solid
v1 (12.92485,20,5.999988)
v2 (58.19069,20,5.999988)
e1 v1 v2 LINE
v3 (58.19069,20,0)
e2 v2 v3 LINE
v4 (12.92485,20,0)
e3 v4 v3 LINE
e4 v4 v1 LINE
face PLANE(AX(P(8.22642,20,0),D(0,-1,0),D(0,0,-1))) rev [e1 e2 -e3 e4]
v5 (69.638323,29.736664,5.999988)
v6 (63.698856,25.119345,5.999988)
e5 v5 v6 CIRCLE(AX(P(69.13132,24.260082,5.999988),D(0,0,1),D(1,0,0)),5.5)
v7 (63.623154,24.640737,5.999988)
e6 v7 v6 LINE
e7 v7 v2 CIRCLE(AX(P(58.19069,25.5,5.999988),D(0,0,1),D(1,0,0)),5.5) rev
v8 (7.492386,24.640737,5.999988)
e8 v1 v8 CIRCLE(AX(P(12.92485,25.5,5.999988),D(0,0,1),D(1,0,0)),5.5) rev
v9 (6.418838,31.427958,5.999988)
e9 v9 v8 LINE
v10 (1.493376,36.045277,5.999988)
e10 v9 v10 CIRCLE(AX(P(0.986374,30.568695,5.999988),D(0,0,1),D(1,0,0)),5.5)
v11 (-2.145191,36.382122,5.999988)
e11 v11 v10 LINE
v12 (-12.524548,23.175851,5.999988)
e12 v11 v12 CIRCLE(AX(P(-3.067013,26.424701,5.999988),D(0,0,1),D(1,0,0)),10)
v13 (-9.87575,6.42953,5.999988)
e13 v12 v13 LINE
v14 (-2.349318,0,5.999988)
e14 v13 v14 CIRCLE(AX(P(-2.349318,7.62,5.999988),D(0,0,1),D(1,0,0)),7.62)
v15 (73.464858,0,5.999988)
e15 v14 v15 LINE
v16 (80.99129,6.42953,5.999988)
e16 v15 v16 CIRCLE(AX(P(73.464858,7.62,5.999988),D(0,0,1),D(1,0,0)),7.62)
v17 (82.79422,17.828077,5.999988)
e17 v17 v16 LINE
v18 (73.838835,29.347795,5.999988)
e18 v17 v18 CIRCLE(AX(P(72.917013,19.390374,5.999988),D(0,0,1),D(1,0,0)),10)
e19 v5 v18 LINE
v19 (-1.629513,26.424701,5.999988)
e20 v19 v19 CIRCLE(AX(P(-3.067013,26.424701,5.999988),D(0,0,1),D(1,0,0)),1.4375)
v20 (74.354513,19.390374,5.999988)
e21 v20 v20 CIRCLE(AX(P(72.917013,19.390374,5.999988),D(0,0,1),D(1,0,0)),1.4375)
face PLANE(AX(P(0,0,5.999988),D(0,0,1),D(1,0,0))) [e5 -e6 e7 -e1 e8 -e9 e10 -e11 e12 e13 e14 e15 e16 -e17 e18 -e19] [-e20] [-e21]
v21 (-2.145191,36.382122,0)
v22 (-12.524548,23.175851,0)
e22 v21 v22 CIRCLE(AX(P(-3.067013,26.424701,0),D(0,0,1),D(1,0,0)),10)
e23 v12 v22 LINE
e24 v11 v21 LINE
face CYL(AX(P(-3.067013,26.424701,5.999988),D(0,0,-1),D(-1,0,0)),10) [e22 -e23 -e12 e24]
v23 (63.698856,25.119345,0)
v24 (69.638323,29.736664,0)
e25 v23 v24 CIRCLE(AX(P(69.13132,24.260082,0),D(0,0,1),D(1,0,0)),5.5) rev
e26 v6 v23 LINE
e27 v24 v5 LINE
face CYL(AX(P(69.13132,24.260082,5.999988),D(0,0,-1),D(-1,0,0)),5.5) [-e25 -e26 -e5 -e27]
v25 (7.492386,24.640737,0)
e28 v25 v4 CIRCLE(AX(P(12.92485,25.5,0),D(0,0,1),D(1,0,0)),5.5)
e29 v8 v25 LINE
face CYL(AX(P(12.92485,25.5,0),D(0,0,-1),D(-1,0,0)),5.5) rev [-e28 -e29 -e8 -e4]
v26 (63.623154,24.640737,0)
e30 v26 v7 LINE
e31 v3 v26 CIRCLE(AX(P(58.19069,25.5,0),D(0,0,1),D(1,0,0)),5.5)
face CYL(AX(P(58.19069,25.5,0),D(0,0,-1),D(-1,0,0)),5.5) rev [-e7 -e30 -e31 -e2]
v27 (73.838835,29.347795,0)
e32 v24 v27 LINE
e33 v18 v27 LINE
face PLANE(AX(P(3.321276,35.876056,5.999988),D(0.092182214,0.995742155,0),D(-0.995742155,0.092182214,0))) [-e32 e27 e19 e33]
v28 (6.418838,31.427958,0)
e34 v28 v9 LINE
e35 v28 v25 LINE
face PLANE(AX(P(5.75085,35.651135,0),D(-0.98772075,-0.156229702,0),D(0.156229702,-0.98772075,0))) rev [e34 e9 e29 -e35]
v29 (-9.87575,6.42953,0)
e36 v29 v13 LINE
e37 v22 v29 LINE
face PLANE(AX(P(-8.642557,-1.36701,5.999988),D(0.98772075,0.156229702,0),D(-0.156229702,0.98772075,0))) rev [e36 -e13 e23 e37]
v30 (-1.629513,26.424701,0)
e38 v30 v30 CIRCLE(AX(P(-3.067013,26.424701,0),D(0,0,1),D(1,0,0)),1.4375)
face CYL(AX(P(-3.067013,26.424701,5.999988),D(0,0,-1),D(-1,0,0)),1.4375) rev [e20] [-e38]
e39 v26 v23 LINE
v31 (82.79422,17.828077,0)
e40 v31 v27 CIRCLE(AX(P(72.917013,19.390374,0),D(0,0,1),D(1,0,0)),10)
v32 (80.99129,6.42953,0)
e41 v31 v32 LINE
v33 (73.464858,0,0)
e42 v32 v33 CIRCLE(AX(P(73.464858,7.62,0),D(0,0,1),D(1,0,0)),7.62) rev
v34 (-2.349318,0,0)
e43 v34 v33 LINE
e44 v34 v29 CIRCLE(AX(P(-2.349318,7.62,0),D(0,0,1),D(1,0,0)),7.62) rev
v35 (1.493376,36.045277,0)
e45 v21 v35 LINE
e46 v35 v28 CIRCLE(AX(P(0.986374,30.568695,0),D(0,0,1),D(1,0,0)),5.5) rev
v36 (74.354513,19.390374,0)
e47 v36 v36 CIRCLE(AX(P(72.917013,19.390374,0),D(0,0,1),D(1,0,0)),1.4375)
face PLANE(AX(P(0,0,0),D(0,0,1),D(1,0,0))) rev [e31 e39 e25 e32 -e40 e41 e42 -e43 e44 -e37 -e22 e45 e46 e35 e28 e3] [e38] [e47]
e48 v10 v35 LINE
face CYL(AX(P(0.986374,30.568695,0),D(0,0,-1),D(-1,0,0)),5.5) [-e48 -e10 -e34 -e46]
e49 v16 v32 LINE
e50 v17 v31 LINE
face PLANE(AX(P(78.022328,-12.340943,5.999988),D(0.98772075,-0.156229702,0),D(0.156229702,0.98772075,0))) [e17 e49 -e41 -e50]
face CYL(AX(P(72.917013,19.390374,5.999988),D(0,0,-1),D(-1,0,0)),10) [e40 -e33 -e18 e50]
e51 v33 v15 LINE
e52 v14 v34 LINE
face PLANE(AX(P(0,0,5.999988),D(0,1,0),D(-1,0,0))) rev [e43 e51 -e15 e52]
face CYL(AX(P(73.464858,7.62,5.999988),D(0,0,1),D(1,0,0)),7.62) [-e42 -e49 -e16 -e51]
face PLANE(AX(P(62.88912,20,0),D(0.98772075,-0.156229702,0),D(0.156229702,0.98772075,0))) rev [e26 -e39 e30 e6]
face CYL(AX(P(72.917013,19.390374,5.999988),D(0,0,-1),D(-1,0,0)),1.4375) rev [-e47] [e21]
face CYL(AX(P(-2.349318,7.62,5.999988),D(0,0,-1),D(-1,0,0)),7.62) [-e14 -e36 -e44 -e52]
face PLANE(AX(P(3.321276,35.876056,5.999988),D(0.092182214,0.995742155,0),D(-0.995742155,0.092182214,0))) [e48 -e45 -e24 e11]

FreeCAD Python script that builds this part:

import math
import FreeCAD as App
import Part
import Sketcher

V = App.Vector
Q = App.Units.Quantity


def edges_at(feature, points):
    """Names of the edges that pass closest to the given points."""
    edges = feature.Shape.Edges
    near = lambda p: min(range(len(edges)), key=lambda i: edges[i].distToShape(Part.Vertex(*p))[0])
    return sorted({f"Edge{near(p) + 1}" for p in points})

doc = App.newDocument("Part")
body = doc.addObject("PartDesign::Body", "Body")

# Sketch on XY plane
sketch1 = body.newObject("Sketcher::SketchObject", "Sketch")
sketch1.AttachmentSupport = (doc.getObject("XY_Plane"), [""])
sketch1.MapMode = "FlatFace"
sketch1.addGeometry(Part.LineSegment(V(-12.5, 23.2, 0), V(-8.9, 0, 0)), False)
sketch1.addGeometry(Part.LineSegment(V(-8.9, 0, 0), V(80, 0, 0)), False)
sketch1.addGeometry(Part.LineSegment(V(80, 0, 0), V(82.8, 17.8, 0)), False)
sketch1.addGeometry(Part.ArcOfCircle(Part.Circle(V(72.9, 19.4, 0), V(0, 0, 1), 10), math.radians(-9), math.radians(85)), False)
sketch1.addGeometry(Part.LineSegment(V(73.8, 29.3, 0), V(-2.1, 36.4, 0)), False)
sketch1.addGeometry(Part.ArcOfCircle(Part.Circle(V(-3.1, 26.4, 0), V(0, 0, 1), 10), math.radians(85), math.radians(199)), False)
sketch1.addGeometry(Part.Circle(V(72.9, 19.4, 0), V(0, 0, 1), 1.4), False)
sketch1.addGeometry(Part.Circle(V(-3.1, 26.4, 0), V(0, 0, 1), 1.4), False)
sketch1.addConstraint(Sketcher.Constraint("Coincident", 0, 2, 1, 1))
sketch1.addConstraint(Sketcher.Constraint("Coincident", 1, 2, 2, 1))
sketch1.addConstraint(Sketcher.Constraint("Tangent", 2, 2, 3, 1))
sketch1.addConstraint(Sketcher.Constraint("Tangent", 3, 2, 4, 1))
sketch1.addConstraint(Sketcher.Constraint("Tangent", 4, 2, 5, 1))
sketch1.addConstraint(Sketcher.Constraint("Coincident", 5, 2, 0, 1))
sketch1.addConstraint(Sketcher.Constraint("Horizontal", 1))
sketch1.addConstraint(Sketcher.Constraint("Coincident", 6, 3, 3, 3))
sketch1.addConstraint(Sketcher.Constraint("Coincident", 7, 3, 5, 3))
sketch1.addConstraint(Sketcher.Constraint("Equal", 3, 5))
sketch1.addConstraint(Sketcher.Constraint("Equal", 6, 7))
sketch1.addConstraint(Sketcher.Constraint("PointOnObject", 0, 2, -1))
sketch1.addConstraint(Sketcher.Constraint("Radius", 3, Q("10 mm")))
sketch1.addConstraint(Sketcher.Constraint("Diameter", 6, Q("2.875 mm")))
sketch1.addConstraint(Sketcher.Constraint("DistanceX", 1, 1, 1, 2, Q("88.833098 mm")))
sketch1.addConstraint(Sketcher.Constraint("DistanceY", -1, 1, 5, 3, Q("26.424701 mm")))
sketch1.addConstraint(Sketcher.Constraint("DistanceX", 1, 2, 2, 2, Q("2.819901 mm")))
sketch1.addConstraint(Sketcher.Constraint("Distance", 0, Q("23.463971 mm")))
sketch1.addConstraint(Sketcher.Constraint("DistanceX", 0, 2, -1, 1, Q("8.858779 mm")))
sketch1.addConstraint(Sketcher.Constraint("DistanceX", 4, 2, -1, 1, Q("2.145191 mm")))
sketch1.addConstraint(Sketcher.Constraint("DistanceX", 5, 2, -1, 1, Q("12.524548 mm")))
pad1 = body.newObject("PartDesign::Pad", "Pad")
pad1.Profile = sketch1
pad1.Length = 5.999988
doc.recompute()

fillet = body.newObject("PartDesign::Fillet", "Fillet")
fillet.Base = (pad1, edges_at(pad1, [(79.974, 0, 3), (-8.859, 0, 3)]))
fillet.Radius = 7.62

# Sketch on XY plane
sketch2 = body.newObject("Sketcher::SketchObject", "Sketch001")
sketch2.AttachmentSupport = (doc.getObject("XY_Plane"), [""])
sketch2.MapMode = "FlatFace"
sketch2.AttachmentOffset = App.Placement(V(0, 0, 5.999988), App.Rotation())
sketch2.addGeometry(Part.LineSegment(V(6, 36, 0), V(8, 20, 0)), False)
sketch2.addGeometry(Part.LineSegment(V(8, 20, 0), V(63, 20, 0)), False)
sketch2.addGeometry(Part.LineSegment(V(63, 20, 0), V(65, 30, 0)), False)
sketch2.addGeometry(Part.LineSegment(V(65, 30, 0), V(6, 36, 0)), False)
sketch2.addConstraint(Sketcher.Constraint("Coincident", 0, 2, 1, 1))
sketch2.addConstraint(Sketcher.Constraint("Coincident", 1, 2, 2, 1))
sketch2.addConstraint(Sketcher.Constraint("Coincident", 2, 2, 3, 1))
sketch2.addConstraint(Sketcher.Constraint("Coincident", 3, 2, 0, 1))
sketch2.addConstraint(Sketcher.Constraint("Horizontal", 1))
sketch2.addConstraint(Sketcher.Constraint("DistanceY", -1, 1, 0, 2, Q("20 mm")))
sketch2.addConstraint(Sketcher.Constraint("DistanceX", 1, 1, 1, 2, Q("54.662699 mm")))
sketch2.addConstraint(Sketcher.Constraint("Distance", 2, Q("10.338901 mm")))
sketch2.addConstraint(Sketcher.Constraint("Distance", 0, Q("15.845709 mm")))
sketch2.addConstraint(Sketcher.Constraint("DistanceX", -1, 1, 0, 2, Q("8.22642 mm")))
sketch2.addConstraint(Sketcher.Constraint("DistanceX", -1, 1, 3, 2, Q("5.75085 mm")))
sketch2.addConstraint(Sketcher.Constraint("DistanceY", 2, 2, 3, 2, Q("5.439188 mm")))
pocket1 = body.newObject("PartDesign::Pocket", "Pocket")
pocket1.Profile = sketch2
pocket1.Type = "ThroughAll"
doc.recompute()

fillet2 = body.newObject("PartDesign::Fillet", "Fillet001")
fillet2.Base = (pocket1, edges_at(pocket1, [
    (5.751, 35.651, 3),
    (64.504, 30.212, 3),
    (62.889, 20, 3),
    (8.226, 20, 3),
]))
fillet2.Radius = 5.5

doc.recompute()
